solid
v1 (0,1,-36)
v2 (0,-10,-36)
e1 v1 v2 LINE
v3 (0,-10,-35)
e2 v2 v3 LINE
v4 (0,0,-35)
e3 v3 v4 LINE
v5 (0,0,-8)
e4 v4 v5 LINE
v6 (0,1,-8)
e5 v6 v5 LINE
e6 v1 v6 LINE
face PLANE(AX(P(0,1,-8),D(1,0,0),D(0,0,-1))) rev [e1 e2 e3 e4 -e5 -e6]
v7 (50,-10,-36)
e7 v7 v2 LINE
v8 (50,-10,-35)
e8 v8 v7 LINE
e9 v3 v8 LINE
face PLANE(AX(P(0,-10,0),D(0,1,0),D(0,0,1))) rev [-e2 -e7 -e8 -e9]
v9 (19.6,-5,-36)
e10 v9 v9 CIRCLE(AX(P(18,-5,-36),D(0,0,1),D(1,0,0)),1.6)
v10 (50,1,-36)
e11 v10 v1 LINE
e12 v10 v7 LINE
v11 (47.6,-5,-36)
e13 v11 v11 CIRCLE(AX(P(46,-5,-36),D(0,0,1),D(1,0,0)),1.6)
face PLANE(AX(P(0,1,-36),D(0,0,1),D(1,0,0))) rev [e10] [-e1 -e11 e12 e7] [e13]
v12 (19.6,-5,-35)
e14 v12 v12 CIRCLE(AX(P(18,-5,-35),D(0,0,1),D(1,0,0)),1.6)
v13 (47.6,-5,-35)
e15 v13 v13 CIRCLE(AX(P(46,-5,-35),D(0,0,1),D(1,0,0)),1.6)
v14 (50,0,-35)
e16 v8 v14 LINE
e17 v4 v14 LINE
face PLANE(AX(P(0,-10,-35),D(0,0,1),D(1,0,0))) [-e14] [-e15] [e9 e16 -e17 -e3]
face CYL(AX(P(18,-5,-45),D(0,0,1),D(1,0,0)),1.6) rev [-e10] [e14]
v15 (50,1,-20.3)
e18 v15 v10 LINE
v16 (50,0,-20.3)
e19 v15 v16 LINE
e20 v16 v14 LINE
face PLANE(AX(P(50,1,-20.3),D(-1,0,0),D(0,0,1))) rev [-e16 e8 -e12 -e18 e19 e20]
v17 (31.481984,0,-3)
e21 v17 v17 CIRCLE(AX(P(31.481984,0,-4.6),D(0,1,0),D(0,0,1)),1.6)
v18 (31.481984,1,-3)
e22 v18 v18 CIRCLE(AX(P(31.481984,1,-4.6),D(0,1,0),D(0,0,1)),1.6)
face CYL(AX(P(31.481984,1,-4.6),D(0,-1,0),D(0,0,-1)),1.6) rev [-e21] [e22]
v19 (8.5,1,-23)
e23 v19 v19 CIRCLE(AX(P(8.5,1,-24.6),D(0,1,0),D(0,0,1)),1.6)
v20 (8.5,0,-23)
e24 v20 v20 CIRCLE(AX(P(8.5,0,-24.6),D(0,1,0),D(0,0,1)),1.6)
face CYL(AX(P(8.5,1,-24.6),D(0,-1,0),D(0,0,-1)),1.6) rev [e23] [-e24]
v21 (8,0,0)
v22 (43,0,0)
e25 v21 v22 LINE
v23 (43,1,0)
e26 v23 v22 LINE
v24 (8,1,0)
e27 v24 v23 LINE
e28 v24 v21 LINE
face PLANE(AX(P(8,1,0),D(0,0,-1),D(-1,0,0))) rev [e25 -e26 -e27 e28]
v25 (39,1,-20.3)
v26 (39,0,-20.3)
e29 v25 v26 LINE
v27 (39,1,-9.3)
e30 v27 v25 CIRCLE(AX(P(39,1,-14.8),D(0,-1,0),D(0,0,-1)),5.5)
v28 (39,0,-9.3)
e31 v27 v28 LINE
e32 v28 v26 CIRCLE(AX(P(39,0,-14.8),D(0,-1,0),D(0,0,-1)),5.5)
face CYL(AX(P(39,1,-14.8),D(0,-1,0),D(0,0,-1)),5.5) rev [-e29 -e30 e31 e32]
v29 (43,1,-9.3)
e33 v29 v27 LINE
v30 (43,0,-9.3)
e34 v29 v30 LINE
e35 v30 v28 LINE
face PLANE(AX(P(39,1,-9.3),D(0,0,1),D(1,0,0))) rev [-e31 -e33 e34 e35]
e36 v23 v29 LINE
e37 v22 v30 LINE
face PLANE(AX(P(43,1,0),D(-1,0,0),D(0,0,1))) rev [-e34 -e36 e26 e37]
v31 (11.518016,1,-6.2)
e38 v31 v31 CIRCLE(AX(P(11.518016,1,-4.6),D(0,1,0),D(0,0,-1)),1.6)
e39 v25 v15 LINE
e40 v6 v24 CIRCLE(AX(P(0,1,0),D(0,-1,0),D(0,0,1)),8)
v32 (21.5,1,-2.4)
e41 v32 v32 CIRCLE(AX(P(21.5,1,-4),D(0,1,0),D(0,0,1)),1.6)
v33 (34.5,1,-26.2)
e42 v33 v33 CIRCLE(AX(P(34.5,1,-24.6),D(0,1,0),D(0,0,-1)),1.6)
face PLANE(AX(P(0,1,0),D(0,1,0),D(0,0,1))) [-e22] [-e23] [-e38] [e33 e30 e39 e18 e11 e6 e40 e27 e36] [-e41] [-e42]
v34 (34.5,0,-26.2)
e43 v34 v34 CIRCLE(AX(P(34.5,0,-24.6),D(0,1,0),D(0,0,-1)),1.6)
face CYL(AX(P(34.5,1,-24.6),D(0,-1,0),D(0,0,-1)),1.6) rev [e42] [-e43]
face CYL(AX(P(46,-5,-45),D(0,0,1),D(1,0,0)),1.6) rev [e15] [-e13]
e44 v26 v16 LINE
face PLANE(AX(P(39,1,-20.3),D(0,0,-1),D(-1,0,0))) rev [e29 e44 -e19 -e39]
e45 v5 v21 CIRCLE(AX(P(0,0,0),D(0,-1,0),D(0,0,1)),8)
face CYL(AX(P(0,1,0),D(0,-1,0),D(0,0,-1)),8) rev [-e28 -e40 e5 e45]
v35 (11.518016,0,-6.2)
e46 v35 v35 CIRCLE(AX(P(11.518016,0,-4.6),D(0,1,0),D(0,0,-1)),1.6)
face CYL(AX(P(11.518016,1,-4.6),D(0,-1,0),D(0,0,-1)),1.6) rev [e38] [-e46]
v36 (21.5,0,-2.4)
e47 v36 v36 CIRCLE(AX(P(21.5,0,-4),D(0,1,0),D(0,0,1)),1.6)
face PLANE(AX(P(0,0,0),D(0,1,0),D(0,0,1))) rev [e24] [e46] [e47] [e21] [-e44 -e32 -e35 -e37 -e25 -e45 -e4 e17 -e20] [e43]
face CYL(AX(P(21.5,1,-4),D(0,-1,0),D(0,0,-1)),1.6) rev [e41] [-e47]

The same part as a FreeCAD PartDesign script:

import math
import FreeCAD as App
import Part
import Sketcher

V = App.Vector
Q = App.Units.Quantity

doc = App.newDocument("Part")
params = doc.addObject("Spreadsheet::Sheet", "Params")
for row, (alias, value) in enumerate([
    ("sketch1_radius", "8 mm"),
    ("sketch1_diameter", "3.2 mm"),
    ("sketch1_radius2", "5.5 mm"),
    ("sketch1_width", "35 mm"),
    ("sketch1_width2", "4 mm"),
    ("pad1_length", "1 mm"),
    ("sketch2_width", "50 mm"),
    ("sketch2_height", "1 mm"),
    ("pad2_length", "11 mm"),
    ("sketch3_diameter", "3.2 mm"),
    ("pocket1_length", "10 mm"),
], start=1):
    params.set(f"A{row}", alias)
    params.set(f"B{row}", "=" + value)
    params.setAlias(f"B{row}", alias)

body = doc.addObject("PartDesign::Body", "Body")

# Sketch on XZ plane
sketch1 = doc.addObject("Sketcher::SketchObject", "Sketch")
body.addObject(sketch1)
sketch1.AttachmentSupport = (doc.XZ_Plane, [""])
sketch1.MapMode = "FlatFace"
sketch1.addGeometry(Part.LineSegment(V(8, 0, 0), V(43, 0, 0)), False)
sketch1.addGeometry(Part.LineSegment(V(43, 0, 0), V(43, -9.3, 0)), False)
sketch1.addGeometry(Part.LineSegment(V(43, -9.3, 0), V(39, -9.3, 0)), False)
sketch1.addGeometry(Part.ArcOfCircle(Part.Circle(V(39, -14.8, 0), V(0, 0, 1), 5.5), math.radians(90), math.radians(270)), False)
sketch1.addGeometry(Part.LineSegment(V(39, -20.3, 0), V(50, -20.3, 0)), False)
sketch1.addGeometry(Part.LineSegment(V(50, -20.3, 0), V(50, -36, 0)), False)
sketch1.addGeometry(Part.LineSegment(V(50, -36, 0), V(0, -36, 0)), False)
sketch1.addGeometry(Part.LineSegment(V(0, -36, 0), V(0, -8, 0)), False)
sketch1.addGeometry(Part.ArcOfCircle(Part.Circle(V(0, 0, 0), V(0, 0, 1), 8), math.radians(-90), math.radians(0)), False)
sketch1.addGeometry(Part.Circle(V(11.518016, -4.6, 0), V(0, 0, 1), 1.6), False)
sketch1.addGeometry(Part.Circle(V(21.5, -4, 0), V(0, 0, 1), 1.6), False)
sketch1.addGeometry(Part.Circle(V(31.481984, -4.6, 0), V(0, 0, 1), 1.6), False)
sketch1.addGeometry(Part.Circle(V(8.5, -24.6, 0), V(0, 0, 1), 1.6), False)
sketch1.addGeometry(Part.Circle(V(34.5, -24.6, 0), V(0, 0, 1), 1.6), False)
sketch1.addConstraint(Sketcher.Constraint("Coincident", 0, 2, 1, 1))
sketch1.addConstraint(Sketcher.Constraint("Coincident", 1, 2, 2, 1))
sketch1.addConstraint(Sketcher.Constraint("Tangent", 2, 2, 3, 1))
sketch1.addConstraint(Sketcher.Constraint("Tangent", 3, 2, 4, 1))
sketch1.addConstraint(Sketcher.Constraint("Coincident", 4, 2, 5, 1))
sketch1.addConstraint(Sketcher.Constraint("Coincident", 5, 2, 6, 1))
sketch1.addConstraint(Sketcher.Constraint("Coincident", 6, 2, 7, 1))
sketch1.addConstraint(Sketcher.Constraint("Coincident", 7, 2, 8, 1))
sketch1.addConstraint(Sketcher.Constraint("Coincident", 8, 2, 0, 1))
sketch1.addConstraint(Sketcher.Constraint("Horizontal", 0))
sketch1.addConstraint(Sketcher.Constraint("Vertical", 1))
sketch1.addConstraint(Sketcher.Constraint("Horizontal", 2))
sketch1.addConstraint(Sketcher.Constraint("Horizontal", 4))
sketch1.addConstraint(Sketcher.Constraint("Vertical", 5))
sketch1.addConstraint(Sketcher.Constraint("Horizontal", 6))
sketch1.addConstraint(Sketcher.Constraint("Vertical", 7))
sketch1.addConstraint(Sketcher.Constraint("Coincident", 8, 3, -1, 1))
sketch1.addConstraint(Sketcher.Constraint("Equal", 9, 10))
sketch1.addConstraint(Sketcher.Constraint("Equal", 10, 11))
sketch1.addConstraint(Sketcher.Constraint("Equal", 11, 12))
sketch1.addConstraint(Sketcher.Constraint("Equal", 12, 13))
sketch1.addConstraint(Sketcher.Constraint("PointOnObject", 0, 2, -1))
sketch1.addConstraint(Sketcher.Constraint("PointOnObject", 6, 2, -2))
sketch1.addConstraint(Sketcher.Constraint("Horizontal", 9, 3, 11, 3))
sketch1.addConstraint(Sketcher.Constraint("Horizontal", 12, 3, 13, 3))
sketch1.addConstraint(Sketcher.Constraint("Radius", 8, Q("8 mm")))
sketch1.addConstraint(Sketcher.Constraint("Diameter", 9, Q("3.2 mm")))
sketch1.addConstraint(Sketcher.Constraint("Radius", 3, Q("5.5 mm")))
sketch1.addConstraint(Sketcher.Constraint("DistanceX", 0, 1, 0, 2, Q("35 mm")))
sketch1.addConstraint(Sketcher.Constraint("DistanceX", 2, 2, 2, 1, Q("4 mm")))
sketch1.addConstraint(Sketcher.Constraint("DistanceX", 4, 1, 4, 2, Q("11 mm")))
sketch1.addConstraint(Sketcher.Constraint("DistanceY", 7, 1, 7, 2, Q("28 mm")))
sketch1.addConstraint(Sketcher.Constraint("DistanceY", 1, 2, 1, 1, Q("9.3 mm")))
sketch1.addConstraint(Sketcher.Constraint("DistanceY", 10, 3, -1, 1, Q("4 mm")))
sketch1.addConstraint(Sketcher.Constraint("DistanceY", 12, 3, 9, 3, Q("20 mm")))
sketch1.addConstraint(Sketcher.Constraint("DistanceX", 12, 3, 10, 3, Q("13 mm")))
sketch1.addConstraint(Sketcher.Constraint("DistanceX", 10, 3, 13, 3, Q("13 mm")))
sketch1.addConstraint(Sketcher.Constraint("DistanceY", 9, 3, -1, 1, Q("4.6 mm")))
sketch1.addConstraint(Sketcher.Constraint("DistanceX", -1, 1, 10, 3, Q("21.5 mm")))
sketch1.addConstraint(Sketcher.Constraint("DistanceX", -1, 1, 9, 3, Q("11.518016 mm")))
sketch1.addConstraint(Sketcher.Constraint("DistanceX", -1, 1, 11, 3, Q("31.481984 mm")))
sketch1.setExpression("Constraints[25]", "Params.sketch1_radius")
sketch1.setExpression("Constraints[26]", "Params.sketch1_diameter")
sketch1.setExpression("Constraints[27]", "Params.sketch1_radius2")
sketch1.setExpression("Constraints[28]", "Params.sketch1_width")
sketch1.setExpression("Constraints[29]", "Params.sketch1_width2")
pad1 = doc.addObject("PartDesign::Pad", "Pad")
body.addObject(pad1)
pad1.Profile = sketch1
pad1.setExpression("Length", "Params.pad1_length")
pad1.Reversed = True

# Sketch on XZ plane
sketch2 = doc.addObject("Sketcher::SketchObject", "Sketch001")
body.addObject(sketch2)
sketch2.AttachmentSupport = (doc.XZ_Plane, [""])
sketch2.MapMode = "FlatFace"
sketch2.AttachmentOffset = App.Placement(V(0, 0, -1), App.Rotation())
sketch2.addGeometry(Part.LineSegment(V(0, -36, 0), V(0, -35, 0)), False)
sketch2.addGeometry(Part.LineSegment(V(0, -35, 0), V(50, -35, 0)), False)
sketch2.addGeometry(Part.LineSegment(V(50, -35, 0), V(50, -36, 0)), False)
sketch2.addGeometry(Part.LineSegment(V(50, -36, 0), V(0, -36, 0)), False)
sketch2.addConstraint(Sketcher.Constraint("Coincident", 0, 2, 1, 1))
sketch2.addConstraint(Sketcher.Constraint("Coincident", 1, 2, 2, 1))
sketch2.addConstraint(Sketcher.Constraint("Coincident", 2, 2, 3, 1))
sketch2.addConstraint(Sketcher.Constraint("Coincident", 3, 2, 0, 1))
sketch2.addConstraint(Sketcher.Constraint("Vertical", 0))
sketch2.addConstraint(Sketcher.Constraint("Horizontal", 1))
sketch2.addConstraint(Sketcher.Constraint("Vertical", 2))
sketch2.addConstraint(Sketcher.Constraint("Horizontal", 3))
sketch2.addConstraint(Sketcher.Constraint("PointOnObject", 0, 2, -2))
sketch2.addConstraint(Sketcher.Constraint("DistanceX", 1, 1, 1, 2, Q("50 mm")))
sketch2.addConstraint(Sketcher.Constraint("DistanceY", 0, 1, 0, 2, Q("1 mm")))
sketch2.addConstraint(Sketcher.Constraint("DistanceY", 0, 2, -1, 1, Q("35 mm")))
sketch2.setExpression("Constraints[9]", "Params.sketch2_width")
sketch2.setExpression("Constraints[10]", "Params.sketch2_height")
pad2 = doc.addObject("PartDesign::Pad", "Pad001")
body.addObject(pad2)
pad2.Profile = sketch2
pad2.setExpression("Length", "Params.pad2_length")

# Sketch on XY plane
sketch3 = doc.addObject("Sketcher::SketchObject", "Sketch002")
body.addObject(sketch3)
sketch3.AttachmentSupport = (doc.XY_Plane, [""])
sketch3.MapMode = "FlatFace"
sketch3.AttachmentOffset = App.Placement(V(0, 0, -35), App.Rotation())
sketch3.addGeometry(Part.Circle(V(46, -5, 0), V(0, 0, 1), 1.6), False)
sketch3.addGeometry(Part.Circle(V(18, -5, 0), V(0, 0, 1), 1.6), False)
sketch3.addConstraint(Sketcher.Constraint("Equal", 0, 1))
sketch3.addConstraint(Sketcher.Constraint("Horizontal", 0, 3, 1, 3))
sketch3.addConstraint(Sketcher.Constraint("Diameter", 0, Q("3.2 mm")))
sketch3.addConstraint(Sketcher.Constraint("DistanceX", -1, 1, 0, 3, Q("46 mm")))
sketch3.addConstraint(Sketcher.Constraint("DistanceY", 0, 3, -1, 1, Q("5 mm")))
sketch3.addConstraint(Sketcher.Constraint("DistanceX", -1, 1, 1, 3, Q("18 mm")))
sketch3.setExpression("Constraints[2]", "Params.sketch3_diameter")
pocket1 = doc.addObject("PartDesign::Pocket", "Pocket")
body.addObject(pocket1)
pocket1.Profile = sketch3
pocket1.setExpression("Length", "Params.pocket1_length")

doc.recompute()
